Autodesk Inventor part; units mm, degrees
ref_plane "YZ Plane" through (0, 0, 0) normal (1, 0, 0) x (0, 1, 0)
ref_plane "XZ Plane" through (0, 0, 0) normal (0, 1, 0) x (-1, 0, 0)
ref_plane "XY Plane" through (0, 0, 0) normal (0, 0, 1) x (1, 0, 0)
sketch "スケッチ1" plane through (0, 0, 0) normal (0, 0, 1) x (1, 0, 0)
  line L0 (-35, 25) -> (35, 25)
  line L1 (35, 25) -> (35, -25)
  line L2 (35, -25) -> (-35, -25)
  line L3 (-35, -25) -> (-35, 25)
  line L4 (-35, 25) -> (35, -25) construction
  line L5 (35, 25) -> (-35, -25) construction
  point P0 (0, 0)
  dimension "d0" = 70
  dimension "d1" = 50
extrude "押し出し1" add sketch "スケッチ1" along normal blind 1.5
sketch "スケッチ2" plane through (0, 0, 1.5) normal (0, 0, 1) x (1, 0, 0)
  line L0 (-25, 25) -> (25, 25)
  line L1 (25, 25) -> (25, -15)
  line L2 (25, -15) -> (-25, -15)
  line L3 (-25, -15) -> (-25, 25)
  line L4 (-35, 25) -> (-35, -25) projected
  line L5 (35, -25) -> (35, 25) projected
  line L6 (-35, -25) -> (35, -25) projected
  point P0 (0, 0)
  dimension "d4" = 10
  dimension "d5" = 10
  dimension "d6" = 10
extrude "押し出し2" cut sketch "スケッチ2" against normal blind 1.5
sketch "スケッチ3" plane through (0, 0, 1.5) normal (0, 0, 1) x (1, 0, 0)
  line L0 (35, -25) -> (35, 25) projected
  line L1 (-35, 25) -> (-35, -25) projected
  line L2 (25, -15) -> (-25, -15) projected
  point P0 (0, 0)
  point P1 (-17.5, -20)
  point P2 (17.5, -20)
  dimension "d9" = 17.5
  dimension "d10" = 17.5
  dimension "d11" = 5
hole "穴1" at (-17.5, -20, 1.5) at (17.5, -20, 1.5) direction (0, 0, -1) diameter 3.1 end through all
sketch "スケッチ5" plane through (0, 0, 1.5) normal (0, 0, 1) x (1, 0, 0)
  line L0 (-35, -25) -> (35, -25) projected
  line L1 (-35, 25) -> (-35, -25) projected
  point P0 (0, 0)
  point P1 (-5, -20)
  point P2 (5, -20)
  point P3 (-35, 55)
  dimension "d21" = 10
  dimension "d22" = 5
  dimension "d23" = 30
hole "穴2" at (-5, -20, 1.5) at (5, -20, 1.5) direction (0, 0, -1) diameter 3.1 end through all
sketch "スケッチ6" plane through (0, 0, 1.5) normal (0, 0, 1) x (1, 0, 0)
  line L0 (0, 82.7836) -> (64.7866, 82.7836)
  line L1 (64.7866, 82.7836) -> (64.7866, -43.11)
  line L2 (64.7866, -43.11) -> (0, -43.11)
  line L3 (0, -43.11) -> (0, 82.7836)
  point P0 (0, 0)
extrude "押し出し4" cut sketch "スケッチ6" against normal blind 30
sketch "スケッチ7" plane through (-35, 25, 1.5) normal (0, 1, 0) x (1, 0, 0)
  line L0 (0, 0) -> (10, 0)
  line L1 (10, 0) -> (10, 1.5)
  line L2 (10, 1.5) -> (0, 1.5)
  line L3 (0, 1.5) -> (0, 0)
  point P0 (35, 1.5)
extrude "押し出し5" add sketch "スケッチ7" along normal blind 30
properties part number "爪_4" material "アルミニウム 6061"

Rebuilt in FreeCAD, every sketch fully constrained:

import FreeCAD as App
import Part
import Sketcher
from FreeCAD import Vector
Q = App.Units.Quantity

doc = App.newDocument("Part")
body = doc.addObject("PartDesign::Body", "Body")

# Sketch on XY plane
sketch1 = doc.addObject("Sketcher::SketchObject", "Sketch")
body.addObject(sketch1)
sketch1.AttachmentSupport = (doc.XY_Plane, [""])
sketch1.MapMode = "FlatFace"
sketch1.addGeometry([
    Part.LineSegment(Vector(35, 25, 0), Vector(-35, 25, 0)),
    Part.LineSegment(Vector(-35, 25, 0), Vector(-35, -25, 0)),
    Part.LineSegment(Vector(-35, -25, 0), Vector(35, -25, 0)),
    Part.LineSegment(Vector(35, -25, 0), Vector(35, 25, 0)),
], False)
sketch1.addConstraint([
    Sketcher.Constraint("Coincident", 0, 2, 1, 1),
    Sketcher.Constraint("Coincident", 1, 2, 2, 1),
    Sketcher.Constraint("Coincident", 2, 2, 3, 1),
    Sketcher.Constraint("Coincident", 3, 2, 0, 1),
    Sketcher.Constraint("Horizontal", 0),
    Sketcher.Constraint("Vertical", 1),
    Sketcher.Constraint("Horizontal", 2),
    Sketcher.Constraint("Vertical", 3),
    Sketcher.Constraint("Symmetric", 0, 2, 2, 2, -1, 1),
    Sketcher.Constraint("DistanceX", 0, 2, 0, 1, Q("70 mm")),
    Sketcher.Constraint("DistanceY", 1, 2, 1, 1, Q("50 mm")),
])
pad1 = doc.addObject("PartDesign::Pad", "Pad")
body.addObject(pad1)
pad1.Profile = sketch1
pad1.Length = 1.5

# Sketch on XY plane
sketch2 = doc.addObject("Sketcher::SketchObject", "Sketch001")
body.addObject(sketch2)
sketch2.AttachmentSupport = (doc.XY_Plane, [""])
sketch2.MapMode = "FlatFace"
sketch2.AttachmentOffset = App.Placement(Vector(0, 0, 1.5), App.Rotation())
sketch2.addGeometry([
    Part.LineSegment(Vector(25, 25, 0), Vector(-25, 25, 0)),
    Part.LineSegment(Vector(-25, 25, 0), Vector(-25, -15, 0)),
    Part.LineSegment(Vector(-25, -15, 0), Vector(25, -15, 0)),
    Part.LineSegment(Vector(25, -15, 0), Vector(25, 25, 0)),
], False)
sketch2.addConstraint([
    Sketcher.Constraint("Coincident", 0, 2, 1, 1),
    Sketcher.Constraint("Coincident", 1, 2, 2, 1),
    Sketcher.Constraint("Coincident", 2, 2, 3, 1),
    Sketcher.Constraint("Coincident", 3, 2, 0, 1),
    Sketcher.Constraint("Horizontal", 0),
    Sketcher.Constraint("Vertical", 1),
    Sketcher.Constraint("Horizontal", 2),
    Sketcher.Constraint("Vertical", 3),
    Sketcher.Constraint("DistanceX", 0, 2, 0, 1, Q("50 mm")),
    Sketcher.Constraint("DistanceY", 1, 2, 1, 1, Q("40 mm")),
    Sketcher.Constraint("DistanceX", 0, 2, -1, 1, Q("25 mm")),
    Sketcher.Constraint("DistanceY", -1, 1, 0, 2, Q("25 mm")),
])
pocket1 = doc.addObject("PartDesign::Pocket", "Pocket")
body.addObject(pocket1)
pocket1.Profile = sketch2
pocket1.Length = 1.5

# Sketch on XY plane
sketch3 = doc.addObject("Sketcher::SketchObject", "Sketch002")
body.addObject(sketch3)
sketch3.AttachmentSupport = (doc.XY_Plane, [""])
sketch3.MapMode = "FlatFace"
sketch3.AttachmentOffset = App.Placement(Vector(0, 0, 1.5), App.Rotation())
sketch3.addGeometry([
    Part.Circle(Vector(-17.5, -20, 0), Vector(0, 0, 1), 1.6),
    Part.Circle(Vector(17.5, -20, 0), Vector(0, 0, 1), 1.6),
], False)
sketch3.addConstraint([
    Sketcher.Constraint("Equal", 0, 1),
    Sketcher.Constraint("Symmetric", 0, 3, 1, 3, -2),
    Sketcher.Constraint("Diameter", 0, Q("3.1 mm")),
    Sketcher.Constraint("DistanceY", 0, 3, -1, 1, Q("20 mm")),
    Sketcher.Constraint("DistanceX", 0, 3, 1, 3, Q("35 mm")),
])
doc.recompute()
hole = doc.addObject("PartDesign::Hole", "Hole")
body.addObject(hole)
hole.Profile = sketch3
hole.ThreadType = "None"
hole.Diameter = 3.1
hole.DepthType = "ThroughAll"

# Sketch on XY plane
sketch4 = doc.addObject("Sketcher::SketchObject", "Sketch003")
body.addObject(sketch4)
sketch4.AttachmentSupport = (doc.XY_Plane, [""])
sketch4.MapMode = "FlatFace"
sketch4.AttachmentOffset = App.Placement(Vector(0, 0, 1.5), App.Rotation())
sketch4.addGeometry([
    Part.Circle(Vector(-5, -20, 0), Vector(0, 0, 1), 1.6),
    Part.Circle(Vector(5, -20, 0), Vector(0, 0, 1), 1.6),
], False)
sketch4.addConstraint([
    Sketcher.Constraint("Equal", 0, 1),
    Sketcher.Constraint("Symmetric", 0, 3, 1, 3, -2),
    Sketcher.Constraint("Diameter", 0, Q("3.1 mm")),
    Sketcher.Constraint("DistanceX", 0, 3, -1, 1, Q("5 mm")),
    Sketcher.Constraint("DistanceY", 0, 3, -1, 1, Q("20 mm")),
])
doc.recompute()
hole2 = doc.addObject("PartDesign::Hole", "Hole001")
body.addObject(hole2)
hole2.Profile = sketch4
hole2.ThreadType = "None"
hole2.Diameter = 3.1
hole2.DepthType = "ThroughAll"

# Sketch on XY plane
sketch5 = doc.addObject("Sketcher::SketchObject", "Sketch004")
body.addObject(sketch5)
sketch5.AttachmentSupport = (doc.XY_Plane, [""])
sketch5.MapMode = "FlatFace"
sketch5.AttachmentOffset = App.Placement(Vector(0, 0, 1.5), App.Rotation())
sketch5.addGeometry([
    Part.LineSegment(Vector(65, 83, 0), Vector(0, 83, 0)),
    Part.LineSegment(Vector(0, 83, 0), Vector(0, -43, 0)),
    Part.LineSegment(Vector(0, -43, 0), Vector(65, -43, 0)),
    Part.LineSegment(Vector(65, -43, 0), Vector(65, 83, 0)),
], False)
sketch5.addConstraint([
    Sketcher.Constraint("Coincident", 0, 2, 1, 1),
    Sketcher.Constraint("Coincident", 1, 2, 2, 1),
    Sketcher.Constraint("Coincident", 2, 2, 3, 1),
    Sketcher.Constraint("Coincident", 3, 2, 0, 1),
    Sketcher.Constraint("Horizontal", 0),
    Sketcher.Constraint("Vertical", 1),
    Sketcher.Constraint("Horizontal", 2),
    Sketcher.Constraint("Vertical", 3),
    Sketcher.Constraint("PointOnObject", 0, 2, -2),
    Sketcher.Constraint("DistanceY", 1, 2, -1, 1, Q("43.11 mm")),
    Sketcher.Constraint("DistanceX", 0, 2, 0, 1, Q("64.7866 mm")),
    Sketcher.Constraint("DistanceY", 1, 2, 1, 1, Q("125.8936 mm")),
])
pocket2 = doc.addObject("PartDesign::Pocket", "Pocket001")
body.addObject(pocket2)
pocket2.Profile = sketch5
pocket2.Length = 30

# Sketch on XZ plane
sketch6 = doc.addObject("Sketcher::SketchObject", "Sketch005")
body.addObject(sketch6)
sketch6.AttachmentSupport = (doc.XZ_Plane, [""])
sketch6.MapMode = "FlatFace"
sketch6.AttachmentOffset = App.Placement(Vector(0, 0, -25), App.Rotation())
sketch6.addGeometry([
    Part.LineSegment(Vector(-35, 0, 0), Vector(-35, 1.5, 0)),
    Part.LineSegment(Vector(-35, 1.5, 0), Vector(-25, 1.5, 0)),
    Part.LineSegment(Vector(-25, 1.5, 0), Vector(-25, 0, 0)),
    Part.LineSegment(Vector(-25, 0, 0), Vector(-35, 0, 0)),
], False)
sketch6.addConstraint([
    Sketcher.Constraint("Coincident", 0, 2, 1, 1),
    Sketcher.Constraint("Coincident", 1, 2, 2, 1),
    Sketcher.Constraint("Coincident", 2, 2, 3, 1),
    Sketcher.Constraint("Coincident", 3, 2, 0, 1),
    Sketcher.Constraint("Vertical", 0),
    Sketcher.Constraint("Horizontal", 1),
    Sketcher.Constraint("Vertical", 2),
    Sketcher.Constraint("Horizontal", 3),
    Sketcher.Constraint("PointOnObject", 2, 2, -1),
    Sketcher.Constraint("DistanceX", 1, 1, 1, 2, Q("10 mm")),
    Sketcher.Constraint("DistanceY", 0, 1, 0, 2, Q("1.5 mm")),
    Sketcher.Constraint("DistanceX", 0, 2, -1, 1, Q("35 mm")),
])
pad2 = doc.addObject("PartDesign::Pad", "Pad001")
body.addObject(pad2)
pad2.Profile = sketch6
pad2.Length = 30
pad2.Reversed = True

doc.recompute()
